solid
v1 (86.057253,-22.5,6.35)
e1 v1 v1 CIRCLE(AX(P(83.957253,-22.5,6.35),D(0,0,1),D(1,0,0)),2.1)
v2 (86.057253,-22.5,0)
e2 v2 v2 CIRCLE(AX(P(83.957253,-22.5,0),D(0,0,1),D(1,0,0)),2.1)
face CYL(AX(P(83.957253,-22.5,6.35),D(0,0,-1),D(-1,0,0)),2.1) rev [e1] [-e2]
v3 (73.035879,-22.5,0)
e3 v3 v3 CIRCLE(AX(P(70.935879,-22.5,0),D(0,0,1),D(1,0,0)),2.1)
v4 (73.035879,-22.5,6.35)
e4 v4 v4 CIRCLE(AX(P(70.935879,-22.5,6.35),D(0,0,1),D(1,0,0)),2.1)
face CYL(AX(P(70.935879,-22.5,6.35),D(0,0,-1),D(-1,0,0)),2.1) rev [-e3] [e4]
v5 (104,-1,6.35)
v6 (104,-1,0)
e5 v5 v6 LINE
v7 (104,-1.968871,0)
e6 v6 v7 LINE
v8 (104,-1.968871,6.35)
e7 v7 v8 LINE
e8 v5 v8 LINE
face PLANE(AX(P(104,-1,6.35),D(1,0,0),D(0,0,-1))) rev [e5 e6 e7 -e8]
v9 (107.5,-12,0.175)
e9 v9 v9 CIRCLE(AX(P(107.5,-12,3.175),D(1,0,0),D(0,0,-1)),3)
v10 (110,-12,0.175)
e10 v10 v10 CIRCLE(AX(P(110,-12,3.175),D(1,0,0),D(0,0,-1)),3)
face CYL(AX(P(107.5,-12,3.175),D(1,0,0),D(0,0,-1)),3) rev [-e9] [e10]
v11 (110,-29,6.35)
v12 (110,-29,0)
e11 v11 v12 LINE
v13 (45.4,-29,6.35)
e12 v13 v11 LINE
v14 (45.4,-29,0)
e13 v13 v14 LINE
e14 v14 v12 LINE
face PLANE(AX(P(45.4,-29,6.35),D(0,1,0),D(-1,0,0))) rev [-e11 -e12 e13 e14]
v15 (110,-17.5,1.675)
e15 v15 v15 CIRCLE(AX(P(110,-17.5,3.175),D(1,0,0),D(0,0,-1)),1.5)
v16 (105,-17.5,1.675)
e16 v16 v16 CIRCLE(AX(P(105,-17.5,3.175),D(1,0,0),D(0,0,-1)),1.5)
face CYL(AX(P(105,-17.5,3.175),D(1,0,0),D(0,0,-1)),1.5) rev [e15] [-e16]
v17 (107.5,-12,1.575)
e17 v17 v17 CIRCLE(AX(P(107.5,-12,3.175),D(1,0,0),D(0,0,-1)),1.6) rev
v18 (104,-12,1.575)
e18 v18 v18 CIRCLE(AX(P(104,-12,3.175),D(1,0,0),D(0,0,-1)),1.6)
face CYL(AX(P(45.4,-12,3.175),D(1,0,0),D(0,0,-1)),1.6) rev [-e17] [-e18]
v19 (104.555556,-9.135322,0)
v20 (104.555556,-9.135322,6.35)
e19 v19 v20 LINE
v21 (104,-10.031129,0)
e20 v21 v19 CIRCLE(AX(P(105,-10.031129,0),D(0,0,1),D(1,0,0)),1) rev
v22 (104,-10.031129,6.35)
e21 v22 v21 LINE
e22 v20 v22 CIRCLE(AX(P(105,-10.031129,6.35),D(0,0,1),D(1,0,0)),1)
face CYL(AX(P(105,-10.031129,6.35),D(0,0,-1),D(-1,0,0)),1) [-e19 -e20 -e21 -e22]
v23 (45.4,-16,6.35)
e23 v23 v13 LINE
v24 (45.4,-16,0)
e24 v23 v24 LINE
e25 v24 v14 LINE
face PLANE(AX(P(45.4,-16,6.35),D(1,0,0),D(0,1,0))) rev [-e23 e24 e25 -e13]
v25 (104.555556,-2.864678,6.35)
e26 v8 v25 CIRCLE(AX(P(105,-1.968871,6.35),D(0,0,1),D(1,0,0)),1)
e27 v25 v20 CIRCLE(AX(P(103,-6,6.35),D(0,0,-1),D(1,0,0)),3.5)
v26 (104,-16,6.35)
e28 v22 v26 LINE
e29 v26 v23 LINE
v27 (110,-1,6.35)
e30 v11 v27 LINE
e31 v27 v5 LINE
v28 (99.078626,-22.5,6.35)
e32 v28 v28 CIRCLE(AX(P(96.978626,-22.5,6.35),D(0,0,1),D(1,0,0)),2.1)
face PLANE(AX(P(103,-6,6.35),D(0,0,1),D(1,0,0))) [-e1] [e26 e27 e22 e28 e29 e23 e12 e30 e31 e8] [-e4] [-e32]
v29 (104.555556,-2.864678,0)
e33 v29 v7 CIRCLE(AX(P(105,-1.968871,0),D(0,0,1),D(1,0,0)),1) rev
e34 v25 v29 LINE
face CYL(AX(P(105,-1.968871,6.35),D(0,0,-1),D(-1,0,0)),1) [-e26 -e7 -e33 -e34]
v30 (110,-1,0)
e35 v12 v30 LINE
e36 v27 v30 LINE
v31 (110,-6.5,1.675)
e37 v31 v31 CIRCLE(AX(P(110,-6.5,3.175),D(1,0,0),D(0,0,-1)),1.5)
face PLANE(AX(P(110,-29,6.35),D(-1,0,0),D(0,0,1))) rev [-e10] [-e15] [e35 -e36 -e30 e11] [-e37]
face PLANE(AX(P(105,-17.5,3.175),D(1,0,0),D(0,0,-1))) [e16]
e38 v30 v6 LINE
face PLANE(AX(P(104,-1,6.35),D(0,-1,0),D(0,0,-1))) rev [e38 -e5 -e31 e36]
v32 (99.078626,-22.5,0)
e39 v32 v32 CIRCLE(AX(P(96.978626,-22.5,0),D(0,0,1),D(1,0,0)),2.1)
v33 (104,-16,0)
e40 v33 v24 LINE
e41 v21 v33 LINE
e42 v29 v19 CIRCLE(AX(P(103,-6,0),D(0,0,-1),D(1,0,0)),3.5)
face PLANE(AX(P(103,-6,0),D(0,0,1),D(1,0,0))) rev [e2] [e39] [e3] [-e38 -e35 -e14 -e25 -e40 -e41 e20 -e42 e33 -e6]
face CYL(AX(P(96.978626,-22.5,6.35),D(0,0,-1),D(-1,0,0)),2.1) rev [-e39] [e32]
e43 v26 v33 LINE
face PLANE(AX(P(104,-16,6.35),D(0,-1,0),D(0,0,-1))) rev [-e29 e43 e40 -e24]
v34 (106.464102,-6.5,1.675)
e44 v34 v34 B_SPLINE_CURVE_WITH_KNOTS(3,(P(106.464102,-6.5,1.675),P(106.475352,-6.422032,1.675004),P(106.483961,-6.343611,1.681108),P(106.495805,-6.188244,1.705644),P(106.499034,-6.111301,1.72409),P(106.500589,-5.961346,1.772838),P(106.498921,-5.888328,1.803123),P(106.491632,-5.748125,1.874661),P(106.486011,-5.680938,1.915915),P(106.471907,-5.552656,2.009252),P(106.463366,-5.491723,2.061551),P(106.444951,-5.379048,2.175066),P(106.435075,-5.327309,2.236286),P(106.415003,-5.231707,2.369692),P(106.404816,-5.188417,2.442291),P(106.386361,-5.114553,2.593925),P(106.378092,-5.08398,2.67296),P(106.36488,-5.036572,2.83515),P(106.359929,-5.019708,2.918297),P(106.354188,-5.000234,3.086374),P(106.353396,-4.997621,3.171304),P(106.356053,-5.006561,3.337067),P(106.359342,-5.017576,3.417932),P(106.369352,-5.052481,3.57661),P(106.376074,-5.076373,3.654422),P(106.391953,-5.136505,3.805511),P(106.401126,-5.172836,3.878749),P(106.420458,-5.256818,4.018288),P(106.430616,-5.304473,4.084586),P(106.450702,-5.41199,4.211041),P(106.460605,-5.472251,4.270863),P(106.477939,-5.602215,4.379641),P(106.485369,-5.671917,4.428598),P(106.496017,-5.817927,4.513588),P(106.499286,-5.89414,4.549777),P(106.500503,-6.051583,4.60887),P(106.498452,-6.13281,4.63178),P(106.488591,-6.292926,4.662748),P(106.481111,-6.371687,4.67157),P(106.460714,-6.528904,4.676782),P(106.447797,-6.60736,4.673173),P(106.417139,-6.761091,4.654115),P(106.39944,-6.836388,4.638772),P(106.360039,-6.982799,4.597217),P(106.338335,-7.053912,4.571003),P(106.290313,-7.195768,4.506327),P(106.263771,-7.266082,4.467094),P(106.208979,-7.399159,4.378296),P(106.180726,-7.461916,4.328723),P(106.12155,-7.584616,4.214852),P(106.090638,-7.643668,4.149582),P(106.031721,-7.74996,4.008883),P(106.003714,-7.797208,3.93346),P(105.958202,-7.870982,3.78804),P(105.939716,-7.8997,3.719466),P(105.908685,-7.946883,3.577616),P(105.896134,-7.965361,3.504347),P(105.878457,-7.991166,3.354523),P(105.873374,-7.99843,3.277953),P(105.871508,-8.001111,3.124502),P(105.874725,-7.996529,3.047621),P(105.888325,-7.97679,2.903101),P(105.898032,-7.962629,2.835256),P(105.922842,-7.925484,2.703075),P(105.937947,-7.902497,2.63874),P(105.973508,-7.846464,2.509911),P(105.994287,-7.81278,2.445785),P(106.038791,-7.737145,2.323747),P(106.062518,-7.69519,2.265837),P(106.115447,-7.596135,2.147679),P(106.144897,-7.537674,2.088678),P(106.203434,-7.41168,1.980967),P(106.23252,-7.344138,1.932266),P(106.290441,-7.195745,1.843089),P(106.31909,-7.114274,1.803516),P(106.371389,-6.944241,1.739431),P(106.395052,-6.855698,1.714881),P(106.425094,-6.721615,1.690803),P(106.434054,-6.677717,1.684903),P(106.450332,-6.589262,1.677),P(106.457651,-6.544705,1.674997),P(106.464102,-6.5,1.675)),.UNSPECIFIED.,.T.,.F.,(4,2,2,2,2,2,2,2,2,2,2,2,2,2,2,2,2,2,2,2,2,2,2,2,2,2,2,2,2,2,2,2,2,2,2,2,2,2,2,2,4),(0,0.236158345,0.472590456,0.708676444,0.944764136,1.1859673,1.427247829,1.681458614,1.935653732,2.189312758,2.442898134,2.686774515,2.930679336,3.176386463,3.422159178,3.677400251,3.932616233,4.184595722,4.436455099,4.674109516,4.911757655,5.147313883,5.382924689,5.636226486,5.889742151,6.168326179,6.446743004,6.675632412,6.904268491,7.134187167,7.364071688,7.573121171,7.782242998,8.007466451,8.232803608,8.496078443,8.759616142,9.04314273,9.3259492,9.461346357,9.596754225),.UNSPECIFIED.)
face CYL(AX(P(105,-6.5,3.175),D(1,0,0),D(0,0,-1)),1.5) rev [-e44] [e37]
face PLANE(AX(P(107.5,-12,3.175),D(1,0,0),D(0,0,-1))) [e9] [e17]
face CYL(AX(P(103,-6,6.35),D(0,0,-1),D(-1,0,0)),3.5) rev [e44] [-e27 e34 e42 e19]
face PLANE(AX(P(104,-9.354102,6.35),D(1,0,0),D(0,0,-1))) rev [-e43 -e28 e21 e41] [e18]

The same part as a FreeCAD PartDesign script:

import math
import FreeCAD as App
import Part
import Sketcher
Q = App.Units.Quantity


def edges_at(feature, points):
    """Names of the edges that pass closest to the given points."""
    edges = feature.Shape.Edges
    near = lambda p: min(range(len(edges)), key=lambda i: edges[i].distToShape(Part.Vertex(*p))[0])
    return sorted({f"Edge{near(p) + 1}" for p in points})

doc = App.newDocument("Part")
params = doc.addObject("Spreadsheet::Sheet", "Params")
for row, (alias, value) in enumerate([
    ("sketch1_diameter", "4.2 mm"),
    ("sketch1_radius", "3.5 mm"),
    ("sketch1_width", "6 mm"),
    ("sketch1_height", "13 mm"),
    ("sketch1_height2", "28 mm"),
    ("pad1_length", "6.35 mm"),
    ("sketch2_diameter", "3.2 mm"),
    ("sketch3_diameter", "6 mm"),
    ("pocket2_length", "2.5 mm"),
    ("sketch4_diameter", "3 mm"),
    ("pocket3_length", "5 mm"),
    ("fillet_radius", "1 mm"),
], start=1):
    params.set(f"A{row}", alias)
    params.set(f"B{row}", "=" + value)
    params.setAlias(f"B{row}", alias)

body = doc.addObject("PartDesign::Body", "Body")

# Sketch on XY plane
sketch1 = body.newObject("Sketcher::SketchObject", "Sketch")
sketch1.AttachmentSupport = (doc.getObject("XY_Plane"), [""])
sketch1.MapMode = "FlatFace"
sketch1.addGeometry([
    Part.LineSegment(App.Vector(45.4, -16, 0), App.Vector(45.4, -29, 0)),  # 0
    Part.LineSegment(App.Vector(45.4, -29, 0), App.Vector(110, -29, 0)),  # 1
    Part.LineSegment(App.Vector(110, -29, 0), App.Vector(110, -1, 0)),  # 2
    Part.LineSegment(App.Vector(110, -1, 0), App.Vector(104, -1, 0)),  # 3
    Part.LineSegment(App.Vector(104, -1, 0), App.Vector(104, -2.6, 0)),  # 4
    Part.ArcOfCircle(Part.Circle(App.Vector(103, -6, 0), App.Vector(0, 0, 1), 3.5), math.radians(-73), math.radians(73)),  # 5
    Part.LineSegment(App.Vector(104, -9.4, 0), App.Vector(104, -16, 0)),  # 6
    Part.LineSegment(App.Vector(104, -16, 0), App.Vector(45.4, -16, 0)),  # 7
    Part.Circle(App.Vector(70.9, -22.5, 0), App.Vector(0, 0, 1), 2.1),  # 8
    Part.Circle(App.Vector(84, -22.5, 0), App.Vector(0, 0, 1), 2.1),  # 9
    Part.Circle(App.Vector(97, -22.5, 0), App.Vector(0, 0, 1), 2.1),  # 10
], False)
sketch1.addConstraint([
    Sketcher.Constraint("Coincident", 0, 2, 1, 1),
    Sketcher.Constraint("Coincident", 1, 2, 2, 1),
    Sketcher.Constraint("Coincident", 2, 2, 3, 1),
    Sketcher.Constraint("Coincident", 3, 2, 4, 1),
    Sketcher.Constraint("Coincident", 4, 2, 5, 2),
    Sketcher.Constraint("Coincident", 5, 1, 6, 1),
    Sketcher.Constraint("Coincident", 6, 2, 7, 1),
    Sketcher.Constraint("Coincident", 7, 2, 0, 1),
    Sketcher.Constraint("Vertical", 0),
    Sketcher.Constraint("Horizontal", 1),
    Sketcher.Constraint("Vertical", 2),
    Sketcher.Constraint("Horizontal", 3),
    Sketcher.Constraint("Vertical", 4),
    Sketcher.Constraint("Vertical", 6),
    Sketcher.Constraint("Horizontal", 7),
    Sketcher.Constraint("Equal", 8, 9),
    Sketcher.Constraint("Equal", 9, 10),
    Sketcher.Constraint("Horizontal", 8, 3, 9, 3),
    Sketcher.Constraint("Horizontal", 9, 3, 10, 3),
    Sketcher.Constraint("Vertical", 4, 2, 5, 1),
    Sketcher.Constraint("Diameter", 8, Q("4.2 mm")),
    Sketcher.Constraint("Radius", 5, Q("3.5 mm")),
    Sketcher.Constraint("DistanceX", 3, 2, 3, 1, Q("6 mm")),
    Sketcher.Constraint("DistanceY", 0, 2, 0, 1, Q("13 mm")),
    Sketcher.Constraint("DistanceY", 2, 1, 2, 2, Q("28 mm")),
    Sketcher.Constraint("DistanceX", 1, 1, 1, 2, Q("64.6 mm")),
    Sketcher.Constraint("DistanceX", -1, 1, 5, 3, Q("103 mm")),
    Sketcher.Constraint("DistanceY", 5, 3, -1, 1, Q("6 mm")),
    Sketcher.Constraint("DistanceY", 0, 2, -1, 1, Q("29 mm")),
    Sketcher.Constraint("DistanceX", -1, 1, 1, 2, Q("110 mm")),
    Sketcher.Constraint("DistanceY", 8, 3, -1, 1, Q("22.5 mm")),
    Sketcher.Constraint("DistanceX", -1, 1, 8, 3, Q("70.935879 mm")),
    Sketcher.Constraint("DistanceX", -1, 1, 9, 3, Q("83.957253 mm")),
    Sketcher.Constraint("DistanceX", -1, 1, 10, 3, Q("96.978626 mm")),
])
sketch1.setExpression("Constraints[20]", "Params.sketch1_diameter")
sketch1.setExpression("Constraints[21]", "Params.sketch1_radius")
sketch1.setExpression("Constraints[22]", "Params.sketch1_width")
sketch1.setExpression("Constraints[23]", "Params.sketch1_height")
sketch1.setExpression("Constraints[24]", "Params.sketch1_height2")
pad1 = body.newObject("PartDesign::Pad", "Pad")
pad1.Profile = sketch1
pad1.setExpression("Length", "Params.pad1_length")

# Sketch on YZ plane
sketch2 = body.newObject("Sketcher::SketchObject", "Sketch001")
sketch2.AttachmentSupport = (doc.getObject("YZ_Plane"), [""])
sketch2.MapMode = "FlatFace"
sketch2.AttachmentOffset = App.Placement(App.Vector(0, 0, 110), App.Rotation())
sketch2.addGeometry(Part.Circle(App.Vector(-12, 3.2, 0), App.Vector(0, 0, 1), 1.6), False)
sketch2.addConstraint([
    Sketcher.Constraint("Diameter", 0, Q("3.2 mm")),
    Sketcher.Constraint("DistanceX", 0, 3, -1, 1, Q("12 mm")),
    Sketcher.Constraint("DistanceY", -1, 1, 0, 3, Q("3.175 mm")),
])
sketch2.setExpression("Constraints[0]", "Params.sketch2_diameter")
pocket1 = body.newObject("PartDesign::Pocket", "Pocket")
pocket1.Profile = sketch2
pocket1.Type = "ThroughAll"

# Sketch on YZ plane
sketch3 = body.newObject("Sketcher::SketchObject", "Sketch002")
sketch3.AttachmentSupport = (doc.getObject("YZ_Plane"), [""])
sketch3.MapMode = "FlatFace"
sketch3.AttachmentOffset = App.Placement(App.Vector(0, 0, 110), App.Rotation())
sketch3.addGeometry(Part.Circle(App.Vector(-12, 3.2, 0), App.Vector(0, 0, 1), 3), False)
sketch3.addConstraint([
    Sketcher.Constraint("Diameter", 0, Q("6 mm")),
    Sketcher.Constraint("DistanceX", 0, 3, -1, 1, Q("12 mm")),
    Sketcher.Constraint("DistanceY", -1, 1, 0, 3, Q("3.175 mm")),
])
sketch3.setExpression("Constraints[0]", "Params.sketch3_diameter")
pocket2 = body.newObject("PartDesign::Pocket", "Pocket001")
pocket2.Profile = sketch3
pocket2.setExpression("Length", "Params.pocket2_length")

# Sketch on YZ plane
sketch4 = body.newObject("Sketcher::SketchObject", "Sketch003")
sketch4.AttachmentSupport = (doc.getObject("YZ_Plane"), [""])
sketch4.MapMode = "FlatFace"
sketch4.AttachmentOffset = App.Placement(App.Vector(0, 0, 110), App.Rotation())
sketch4.addGeometry([
    Part.Circle(App.Vector(-17.5, 3.2, 0), App.Vector(0, 0, 1), 1.5),
    Part.Circle(App.Vector(-6.5, 3.2, 0), App.Vector(0, 0, 1), 1.5),
], False)
sketch4.addConstraint([
    Sketcher.Constraint("Equal", 0, 1),
    Sketcher.Constraint("Horizontal", 0, 3, 1, 3),
    Sketcher.Constraint("Diameter", 0, Q("3 mm")),
    Sketcher.Constraint("DistanceX", 0, 3, 1, 3, Q("11 mm")),
    Sketcher.Constraint("DistanceX", 0, 3, -1, 1, Q("17.5 mm")),
    Sketcher.Constraint("DistanceY", -1, 1, 0, 3, Q("3.175 mm")),
])
sketch4.setExpression("Constraints[2]", "Params.sketch4_diameter")
pocket3 = body.newObject("PartDesign::Pocket", "Pocket002")
pocket3.Profile = sketch4
pocket3.setExpression("Length", "Params.pocket3_length")
doc.recompute()

fillet = body.newObject("PartDesign::Fillet", "Fillet")
fillet.Base = (pocket3, edges_at(pocket3, [(104, -9.354, 3.175), (104, -2.646, 3.175)]))
fillet.setExpression("Radius", "Params.fillet_radius")

doc.recompute()
